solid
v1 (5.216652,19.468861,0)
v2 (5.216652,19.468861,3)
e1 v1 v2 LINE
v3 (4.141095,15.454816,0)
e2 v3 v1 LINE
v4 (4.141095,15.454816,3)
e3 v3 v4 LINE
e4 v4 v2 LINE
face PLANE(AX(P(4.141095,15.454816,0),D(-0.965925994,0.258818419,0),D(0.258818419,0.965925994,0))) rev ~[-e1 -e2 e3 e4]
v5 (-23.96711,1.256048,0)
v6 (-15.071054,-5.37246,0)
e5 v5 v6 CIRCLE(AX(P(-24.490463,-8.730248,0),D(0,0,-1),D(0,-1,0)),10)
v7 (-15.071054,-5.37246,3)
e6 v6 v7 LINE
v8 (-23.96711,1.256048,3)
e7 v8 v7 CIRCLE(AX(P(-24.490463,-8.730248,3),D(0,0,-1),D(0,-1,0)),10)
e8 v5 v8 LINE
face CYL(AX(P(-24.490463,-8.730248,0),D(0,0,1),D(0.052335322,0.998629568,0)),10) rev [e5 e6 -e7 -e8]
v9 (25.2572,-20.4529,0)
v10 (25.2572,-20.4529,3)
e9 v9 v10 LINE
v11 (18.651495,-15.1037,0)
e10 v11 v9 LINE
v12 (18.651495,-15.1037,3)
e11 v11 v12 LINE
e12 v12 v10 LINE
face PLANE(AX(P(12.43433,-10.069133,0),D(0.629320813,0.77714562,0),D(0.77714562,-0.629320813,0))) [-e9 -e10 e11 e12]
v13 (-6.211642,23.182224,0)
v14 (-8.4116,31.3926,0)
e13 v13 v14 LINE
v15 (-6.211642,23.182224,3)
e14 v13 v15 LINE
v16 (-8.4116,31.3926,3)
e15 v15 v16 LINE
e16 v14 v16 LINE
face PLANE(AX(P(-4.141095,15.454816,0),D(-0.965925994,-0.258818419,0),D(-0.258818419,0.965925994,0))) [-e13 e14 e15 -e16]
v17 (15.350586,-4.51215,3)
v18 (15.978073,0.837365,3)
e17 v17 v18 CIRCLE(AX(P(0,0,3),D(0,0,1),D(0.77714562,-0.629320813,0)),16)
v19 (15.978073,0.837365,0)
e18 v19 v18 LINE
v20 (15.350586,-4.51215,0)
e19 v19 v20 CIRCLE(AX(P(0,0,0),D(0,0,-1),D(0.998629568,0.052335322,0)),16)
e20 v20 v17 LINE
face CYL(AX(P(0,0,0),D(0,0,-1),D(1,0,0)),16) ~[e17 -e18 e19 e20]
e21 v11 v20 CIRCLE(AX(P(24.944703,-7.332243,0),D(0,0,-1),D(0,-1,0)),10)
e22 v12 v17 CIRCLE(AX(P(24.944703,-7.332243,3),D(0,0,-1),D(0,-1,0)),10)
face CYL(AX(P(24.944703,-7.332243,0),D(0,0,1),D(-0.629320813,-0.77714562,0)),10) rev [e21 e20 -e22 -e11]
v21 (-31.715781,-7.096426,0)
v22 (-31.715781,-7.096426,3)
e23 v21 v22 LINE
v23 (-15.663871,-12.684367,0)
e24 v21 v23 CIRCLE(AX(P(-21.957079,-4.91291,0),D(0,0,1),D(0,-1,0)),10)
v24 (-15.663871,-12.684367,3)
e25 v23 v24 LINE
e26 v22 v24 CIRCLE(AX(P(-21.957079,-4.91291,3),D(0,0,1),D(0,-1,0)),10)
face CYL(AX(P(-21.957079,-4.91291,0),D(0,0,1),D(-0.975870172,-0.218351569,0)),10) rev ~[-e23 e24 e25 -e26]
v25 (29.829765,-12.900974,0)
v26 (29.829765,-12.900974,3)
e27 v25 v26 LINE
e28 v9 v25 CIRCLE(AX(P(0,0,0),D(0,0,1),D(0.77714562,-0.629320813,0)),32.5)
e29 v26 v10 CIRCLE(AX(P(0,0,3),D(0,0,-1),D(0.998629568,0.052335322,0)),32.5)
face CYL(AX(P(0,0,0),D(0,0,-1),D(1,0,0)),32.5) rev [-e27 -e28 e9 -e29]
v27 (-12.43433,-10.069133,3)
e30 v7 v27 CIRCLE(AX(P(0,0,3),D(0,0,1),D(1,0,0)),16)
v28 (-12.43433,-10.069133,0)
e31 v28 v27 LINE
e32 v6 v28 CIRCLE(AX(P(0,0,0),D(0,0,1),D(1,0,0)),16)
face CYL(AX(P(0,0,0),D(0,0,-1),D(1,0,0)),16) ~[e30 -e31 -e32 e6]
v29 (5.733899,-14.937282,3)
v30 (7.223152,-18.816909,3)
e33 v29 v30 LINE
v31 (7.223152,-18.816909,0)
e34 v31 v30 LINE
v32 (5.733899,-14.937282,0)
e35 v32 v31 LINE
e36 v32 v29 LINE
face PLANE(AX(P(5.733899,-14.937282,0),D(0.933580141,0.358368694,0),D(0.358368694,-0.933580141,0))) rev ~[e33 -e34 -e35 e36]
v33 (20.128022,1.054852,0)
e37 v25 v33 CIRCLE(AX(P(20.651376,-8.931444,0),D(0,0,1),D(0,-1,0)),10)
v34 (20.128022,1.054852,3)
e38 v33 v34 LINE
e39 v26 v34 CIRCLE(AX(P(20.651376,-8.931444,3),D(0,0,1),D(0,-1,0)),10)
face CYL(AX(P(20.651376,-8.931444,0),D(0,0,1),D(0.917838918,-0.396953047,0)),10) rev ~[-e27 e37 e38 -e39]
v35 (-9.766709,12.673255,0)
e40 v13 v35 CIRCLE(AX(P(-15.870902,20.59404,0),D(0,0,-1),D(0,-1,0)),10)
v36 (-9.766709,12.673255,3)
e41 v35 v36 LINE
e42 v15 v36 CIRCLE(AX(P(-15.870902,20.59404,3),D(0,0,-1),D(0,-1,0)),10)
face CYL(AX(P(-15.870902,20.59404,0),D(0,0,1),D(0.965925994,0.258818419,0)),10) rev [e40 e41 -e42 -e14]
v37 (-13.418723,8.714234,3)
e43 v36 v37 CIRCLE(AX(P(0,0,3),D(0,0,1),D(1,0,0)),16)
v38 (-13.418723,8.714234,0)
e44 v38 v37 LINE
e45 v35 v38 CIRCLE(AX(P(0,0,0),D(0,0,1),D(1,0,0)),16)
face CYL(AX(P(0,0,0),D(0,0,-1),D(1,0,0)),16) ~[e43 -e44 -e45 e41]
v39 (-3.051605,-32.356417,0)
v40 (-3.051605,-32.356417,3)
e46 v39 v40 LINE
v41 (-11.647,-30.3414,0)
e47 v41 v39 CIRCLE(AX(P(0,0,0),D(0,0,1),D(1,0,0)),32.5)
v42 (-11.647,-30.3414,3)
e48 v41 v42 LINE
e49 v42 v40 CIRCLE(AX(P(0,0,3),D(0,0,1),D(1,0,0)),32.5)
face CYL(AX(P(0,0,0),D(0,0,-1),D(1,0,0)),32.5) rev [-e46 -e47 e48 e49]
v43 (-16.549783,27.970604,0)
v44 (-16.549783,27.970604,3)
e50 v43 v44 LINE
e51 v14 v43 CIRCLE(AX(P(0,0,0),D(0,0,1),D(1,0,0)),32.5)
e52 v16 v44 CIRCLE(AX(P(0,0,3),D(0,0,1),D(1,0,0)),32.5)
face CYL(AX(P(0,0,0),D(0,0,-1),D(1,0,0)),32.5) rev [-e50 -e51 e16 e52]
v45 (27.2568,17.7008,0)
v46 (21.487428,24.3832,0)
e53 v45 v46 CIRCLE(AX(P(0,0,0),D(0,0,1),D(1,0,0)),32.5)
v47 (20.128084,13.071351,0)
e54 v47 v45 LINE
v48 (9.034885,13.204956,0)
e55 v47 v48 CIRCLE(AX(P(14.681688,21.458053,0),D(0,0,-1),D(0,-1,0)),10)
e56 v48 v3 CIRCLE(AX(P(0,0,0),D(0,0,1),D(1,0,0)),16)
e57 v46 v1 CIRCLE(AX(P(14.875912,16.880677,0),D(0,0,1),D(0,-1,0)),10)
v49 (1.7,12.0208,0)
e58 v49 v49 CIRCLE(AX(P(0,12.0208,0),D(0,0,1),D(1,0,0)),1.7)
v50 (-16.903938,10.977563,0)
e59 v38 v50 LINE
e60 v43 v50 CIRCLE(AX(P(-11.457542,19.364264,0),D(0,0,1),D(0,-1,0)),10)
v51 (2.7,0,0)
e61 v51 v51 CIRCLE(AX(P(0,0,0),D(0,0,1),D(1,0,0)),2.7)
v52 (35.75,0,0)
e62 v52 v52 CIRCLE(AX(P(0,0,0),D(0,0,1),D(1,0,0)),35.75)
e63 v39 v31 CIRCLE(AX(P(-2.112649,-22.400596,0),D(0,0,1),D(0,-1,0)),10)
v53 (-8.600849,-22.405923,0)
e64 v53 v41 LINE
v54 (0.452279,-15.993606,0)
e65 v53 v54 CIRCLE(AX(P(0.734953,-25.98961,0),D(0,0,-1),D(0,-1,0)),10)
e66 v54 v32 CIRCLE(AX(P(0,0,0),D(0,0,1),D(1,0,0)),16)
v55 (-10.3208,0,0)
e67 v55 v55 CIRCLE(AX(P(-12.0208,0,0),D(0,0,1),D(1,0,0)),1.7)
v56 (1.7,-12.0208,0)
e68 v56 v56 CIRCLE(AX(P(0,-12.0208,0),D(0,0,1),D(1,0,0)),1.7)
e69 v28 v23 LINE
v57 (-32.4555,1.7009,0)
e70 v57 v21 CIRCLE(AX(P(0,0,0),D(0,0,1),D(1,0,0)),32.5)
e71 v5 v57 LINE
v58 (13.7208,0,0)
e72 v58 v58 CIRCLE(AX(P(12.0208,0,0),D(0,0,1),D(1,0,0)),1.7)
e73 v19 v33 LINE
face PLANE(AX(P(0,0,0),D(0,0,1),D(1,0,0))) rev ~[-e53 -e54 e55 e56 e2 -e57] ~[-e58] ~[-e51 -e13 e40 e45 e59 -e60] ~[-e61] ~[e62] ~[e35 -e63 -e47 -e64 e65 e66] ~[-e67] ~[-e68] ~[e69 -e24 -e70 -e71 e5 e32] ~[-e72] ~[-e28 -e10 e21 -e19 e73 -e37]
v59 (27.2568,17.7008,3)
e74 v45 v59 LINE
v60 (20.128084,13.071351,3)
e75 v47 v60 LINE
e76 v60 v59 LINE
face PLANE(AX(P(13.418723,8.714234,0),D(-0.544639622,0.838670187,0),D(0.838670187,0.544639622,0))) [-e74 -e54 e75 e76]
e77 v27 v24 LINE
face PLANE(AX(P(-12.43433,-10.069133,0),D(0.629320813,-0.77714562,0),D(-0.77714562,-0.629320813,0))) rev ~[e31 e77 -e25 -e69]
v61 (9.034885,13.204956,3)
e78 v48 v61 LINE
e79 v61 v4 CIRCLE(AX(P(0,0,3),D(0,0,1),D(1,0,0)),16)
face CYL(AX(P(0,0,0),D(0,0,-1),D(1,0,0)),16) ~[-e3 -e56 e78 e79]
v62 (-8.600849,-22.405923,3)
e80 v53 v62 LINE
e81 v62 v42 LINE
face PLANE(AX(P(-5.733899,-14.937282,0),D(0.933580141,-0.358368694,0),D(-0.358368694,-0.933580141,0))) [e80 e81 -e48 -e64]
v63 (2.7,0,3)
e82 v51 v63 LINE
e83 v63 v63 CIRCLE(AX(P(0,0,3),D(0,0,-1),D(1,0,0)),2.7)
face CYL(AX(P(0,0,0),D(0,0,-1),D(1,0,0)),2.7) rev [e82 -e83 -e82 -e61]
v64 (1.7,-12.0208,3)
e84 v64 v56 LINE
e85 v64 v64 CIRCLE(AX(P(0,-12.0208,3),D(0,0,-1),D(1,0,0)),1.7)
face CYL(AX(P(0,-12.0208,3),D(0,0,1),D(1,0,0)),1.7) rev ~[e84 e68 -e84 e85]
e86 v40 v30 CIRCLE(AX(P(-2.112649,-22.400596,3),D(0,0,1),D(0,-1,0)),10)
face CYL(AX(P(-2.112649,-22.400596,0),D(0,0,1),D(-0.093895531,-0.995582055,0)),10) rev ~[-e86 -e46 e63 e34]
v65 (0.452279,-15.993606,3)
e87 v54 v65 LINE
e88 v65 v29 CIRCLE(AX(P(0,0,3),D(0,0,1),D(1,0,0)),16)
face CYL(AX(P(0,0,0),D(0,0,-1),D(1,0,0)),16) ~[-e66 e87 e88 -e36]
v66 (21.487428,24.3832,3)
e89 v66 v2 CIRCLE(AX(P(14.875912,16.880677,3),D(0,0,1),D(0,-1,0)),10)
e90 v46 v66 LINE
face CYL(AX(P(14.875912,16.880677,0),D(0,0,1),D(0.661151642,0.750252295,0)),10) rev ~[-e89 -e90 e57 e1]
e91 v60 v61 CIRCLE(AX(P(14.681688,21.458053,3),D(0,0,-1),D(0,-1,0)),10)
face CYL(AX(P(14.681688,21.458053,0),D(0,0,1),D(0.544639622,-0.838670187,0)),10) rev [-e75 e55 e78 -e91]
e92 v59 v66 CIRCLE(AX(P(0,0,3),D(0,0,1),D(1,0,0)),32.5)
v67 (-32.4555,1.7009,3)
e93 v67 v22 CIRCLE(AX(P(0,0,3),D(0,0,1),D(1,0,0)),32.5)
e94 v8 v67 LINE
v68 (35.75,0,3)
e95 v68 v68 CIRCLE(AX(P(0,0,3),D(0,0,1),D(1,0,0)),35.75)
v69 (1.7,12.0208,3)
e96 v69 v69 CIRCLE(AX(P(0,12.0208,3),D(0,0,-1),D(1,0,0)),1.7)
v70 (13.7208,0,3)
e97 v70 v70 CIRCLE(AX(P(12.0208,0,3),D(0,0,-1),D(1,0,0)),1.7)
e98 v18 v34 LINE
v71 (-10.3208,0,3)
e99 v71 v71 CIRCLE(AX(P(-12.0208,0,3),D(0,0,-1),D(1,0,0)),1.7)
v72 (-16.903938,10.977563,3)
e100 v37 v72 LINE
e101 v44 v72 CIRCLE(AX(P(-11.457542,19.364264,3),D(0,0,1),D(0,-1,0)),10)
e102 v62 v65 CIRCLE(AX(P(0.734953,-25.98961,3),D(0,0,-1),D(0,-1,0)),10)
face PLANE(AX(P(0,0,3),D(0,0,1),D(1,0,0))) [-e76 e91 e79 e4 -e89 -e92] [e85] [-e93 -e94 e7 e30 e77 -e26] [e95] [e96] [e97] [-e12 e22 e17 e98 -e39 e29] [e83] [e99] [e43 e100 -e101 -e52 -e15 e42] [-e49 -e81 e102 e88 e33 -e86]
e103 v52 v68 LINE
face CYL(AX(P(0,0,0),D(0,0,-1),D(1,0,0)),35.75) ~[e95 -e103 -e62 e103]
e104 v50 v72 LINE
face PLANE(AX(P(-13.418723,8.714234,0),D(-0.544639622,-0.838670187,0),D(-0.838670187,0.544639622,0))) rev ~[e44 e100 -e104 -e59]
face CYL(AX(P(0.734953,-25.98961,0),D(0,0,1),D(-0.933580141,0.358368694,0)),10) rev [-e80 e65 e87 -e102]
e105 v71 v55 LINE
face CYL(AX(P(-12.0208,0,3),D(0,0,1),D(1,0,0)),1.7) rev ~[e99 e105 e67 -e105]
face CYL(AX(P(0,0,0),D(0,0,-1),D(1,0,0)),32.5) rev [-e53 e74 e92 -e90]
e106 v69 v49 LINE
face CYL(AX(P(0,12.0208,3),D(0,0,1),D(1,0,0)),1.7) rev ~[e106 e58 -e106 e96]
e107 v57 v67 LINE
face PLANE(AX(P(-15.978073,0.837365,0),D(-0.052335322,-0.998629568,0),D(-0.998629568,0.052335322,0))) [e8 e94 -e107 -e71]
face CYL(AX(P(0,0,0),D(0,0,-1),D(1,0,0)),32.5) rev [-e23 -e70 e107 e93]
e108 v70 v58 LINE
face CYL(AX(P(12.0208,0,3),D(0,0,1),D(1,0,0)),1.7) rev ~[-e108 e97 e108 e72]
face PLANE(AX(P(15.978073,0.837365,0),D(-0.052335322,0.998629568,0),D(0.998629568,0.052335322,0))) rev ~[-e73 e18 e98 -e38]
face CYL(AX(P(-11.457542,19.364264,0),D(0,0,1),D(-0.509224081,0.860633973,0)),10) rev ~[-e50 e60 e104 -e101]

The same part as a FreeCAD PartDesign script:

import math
import FreeCAD as App
import Part
import Sketcher
Q = App.Units.Quantity


def edges_at(feature, points):
    """Names of the edges that pass closest to the given points."""
    edges = feature.Shape.Edges
    near = lambda p: min(range(len(edges)), key=lambda i: edges[i].distToShape(Part.Vertex(*p))[0])
    return sorted({f"Edge{near(p) + 1}" for p in points})

doc = App.newDocument("Part")
body = doc.addObject("PartDesign::Body", "Body")

# Sketch on XY plane
sketch1 = body.newObject("Sketcher::SketchObject", "Sketch")
sketch1.AttachmentSupport = (doc.getObject("XY_Plane"), [""])
sketch1.MapMode = "FlatFace"
sketch1.addGeometry([
    Part.Circle(App.Vector(0, 0, 0), App.Vector(0, 0, 1), 35.8),  # 0
    Part.ArcOfCircle(Part.Circle(App.Vector(0, 0, 0), App.Vector(0, 0, 1), 32.5), math.radians(-39), math.radians(3)),  # 1
    Part.LineSegment(App.Vector(25.3, -20.5, 0), App.Vector(12.4, -10.1, 0)),  # 2
    Part.ArcOfCircle(Part.Circle(App.Vector(0, 0, 0), App.Vector(0, 0, 1), 16), math.radians(-39), math.radians(3)),  # 3
    Part.LineSegment(App.Vector(16, 0.8, 0), App.Vector(32.5, 1.7, 0)),  # 4
    Part.ArcOfCircle(Part.Circle(App.Vector(0, 0, 0), App.Vector(0, 0, 1), 32.5), math.radians(33), math.radians(75)),  # 5
    Part.LineSegment(App.Vector(27.3, 17.7, 0), App.Vector(13.4, 8.7, 0)),  # 6
    Part.ArcOfCircle(Part.Circle(App.Vector(0, 0, 0), App.Vector(0, 0, 1), 16), math.radians(33), math.radians(75)),  # 7
    Part.LineSegment(App.Vector(4.1, 15.5, 0), App.Vector(8.4, 31.4, 0)),  # 8
    Part.ArcOfCircle(Part.Circle(App.Vector(0, 0, 0), App.Vector(0, 0, 1), 32.5), math.radians(105), math.radians(147)),  # 9
    Part.LineSegment(App.Vector(-8.4, 31.4, 0), App.Vector(-4.1, 15.5, 0)),  # 10
    Part.ArcOfCircle(Part.Circle(App.Vector(0, 0, 0), App.Vector(0, 0, 1), 16), math.radians(105), math.radians(147)),  # 11
    Part.LineSegment(App.Vector(-13.4, 8.7, 0), App.Vector(-27.3, 17.7, 0)),  # 12
    Part.ArcOfCircle(Part.Circle(App.Vector(0, 0, 0), App.Vector(0, 0, 1), 32.5), math.radians(177), math.radians(219)),  # 13
    Part.LineSegment(App.Vector(-32.5, 1.7, 0), App.Vector(-16, 0.8, 0)),  # 14
    Part.ArcOfCircle(Part.Circle(App.Vector(0, 0, 0), App.Vector(0, 0, 1), 16), math.radians(177), math.radians(219)),  # 15
    Part.LineSegment(App.Vector(-12.4, -10.1, 0), App.Vector(-25.3, -20.5, 0)),  # 16
    Part.ArcOfCircle(Part.Circle(App.Vector(0, 0, 0), App.Vector(0, 0, 1), 32.5), math.radians(-111), math.radians(-69)),  # 17
    Part.LineSegment(App.Vector(-11.6, -30.3, 0), App.Vector(-5.7, -14.9, 0)),  # 18
    Part.ArcOfCircle(Part.Circle(App.Vector(0, 0, 0), App.Vector(0, 0, 1), 16), math.radians(-111), math.radians(-69)),  # 19
    Part.LineSegment(App.Vector(5.7, -14.9, 0), App.Vector(11.6, -30.3, 0)),  # 20
    Part.Circle(App.Vector(0, 0, 0), App.Vector(0, 0, 1), 2.7),  # 21
], False)
sketch1.addConstraint([
    Sketcher.Constraint("Coincident", 1, 1, 2, 1),
    Sketcher.Constraint("Coincident", 2, 2, 3, 1),
    Sketcher.Constraint("Coincident", 3, 2, 4, 1),
    Sketcher.Constraint("Coincident", 4, 2, 1, 2),
    Sketcher.Constraint("Coincident", 5, 1, 6, 1),
    Sketcher.Constraint("Coincident", 6, 2, 7, 1),
    Sketcher.Constraint("Coincident", 7, 2, 8, 1),
    Sketcher.Constraint("Coincident", 8, 2, 5, 2),
    Sketcher.Constraint("Coincident", 9, 1, 10, 1),
    Sketcher.Constraint("Coincident", 10, 2, 11, 1),
    Sketcher.Constraint("Coincident", 11, 2, 12, 1),
    Sketcher.Constraint("Coincident", 12, 2, 9, 2),
    Sketcher.Constraint("Coincident", 13, 1, 14, 1),
    Sketcher.Constraint("Coincident", 14, 2, 15, 1),
    Sketcher.Constraint("Coincident", 15, 2, 16, 1),
    Sketcher.Constraint("Coincident", 16, 2, 13, 2),
    Sketcher.Constraint("Coincident", 17, 1, 18, 1),
    Sketcher.Constraint("Coincident", 18, 2, 19, 1),
    Sketcher.Constraint("Coincident", 19, 2, 20, 1),
    Sketcher.Constraint("Coincident", 20, 2, 17, 2),
    Sketcher.Constraint("Coincident", 0, 3, -1, 1),
    Sketcher.Constraint("Coincident", 1, 3, -1, 1),
    Sketcher.Constraint("Coincident", 3, 3, -1, 1),
    Sketcher.Constraint("Coincident", 5, 3, -1, 1),
    Sketcher.Constraint("Coincident", 7, 3, -1, 1),
    Sketcher.Constraint("Coincident", 9, 3, -1, 1),
    Sketcher.Constraint("Coincident", 11, 3, -1, 1),
    Sketcher.Constraint("Coincident", 13, 3, -1, 1),
    Sketcher.Constraint("Coincident", 15, 3, -1, 1),
    Sketcher.Constraint("Coincident", 17, 3, -1, 1),
    Sketcher.Constraint("Coincident", 19, 3, -1, 1),
    Sketcher.Constraint("Coincident", 21, 3, -1, 1),
    Sketcher.Constraint("Equal", 1, 5),
    Sketcher.Constraint("Equal", 3, 7),
    Sketcher.Constraint("Equal", 5, 9),
    Sketcher.Constraint("Equal", 7, 11),
    Sketcher.Constraint("Equal", 9, 13),
    Sketcher.Constraint("Equal", 11, 15),
    Sketcher.Constraint("Equal", 13, 17),
    Sketcher.Constraint("Equal", 15, 19),
    Sketcher.Constraint("Horizontal", 8, 2, 9, 1),
    Sketcher.Constraint("Horizontal", 7, 2, 10, 2),
    Sketcher.Constraint("Horizontal", 6, 2, 11, 2),
    Sketcher.Constraint("Horizontal", 5, 1, 12, 2),
    Sketcher.Constraint("Horizontal", 4, 2, 13, 1),
    Sketcher.Constraint("Horizontal", 3, 2, 14, 2),
    Sketcher.Constraint("Horizontal", 2, 2, 15, 2),
    Sketcher.Constraint("Horizontal", 1, 1, 16, 2),
    Sketcher.Constraint("Horizontal", 18, 2, 19, 2),
    Sketcher.Constraint("Horizontal", 17, 1, 20, 2),
    Sketcher.Constraint("Radius", 3, 16.0),
    Sketcher.Constraint("Diameter", 0, 71.5),
    Sketcher.Constraint("Diameter", 21, 5.4),
    Sketcher.Constraint("Radius", 1, 32.5),
    Sketcher.Constraint("Angle", 2, Q("141 deg")),
    Sketcher.Constraint("Angle", 4, Q("3 deg")),
    Sketcher.Constraint("Angle", 6, Q("-147 deg")),
    Sketcher.Constraint("Angle", 8, Q("75 deg")),
    Sketcher.Constraint("Angle", 18, Q("69 deg")),
    Sketcher.Constraint("DistanceY", 4, 2, 5, 1, 16.0),
    Sketcher.Constraint("DistanceY", 2, 2, 4, 2, 11.77),
    Sketcher.Constraint("DistanceY", 1, 1, -1, 1, 20.453),
    Sketcher.Constraint("DistanceX", -1, 1, 7, 2, 4.141),
    Sketcher.Constraint("DistanceX", 17, 1, -1, 1, 11.647),
])
pad1 = body.newObject("PartDesign::Pad", "Pad")
pad1.Profile = sketch1
pad1.Length = 3
doc.recompute()

fillet = body.newObject("PartDesign::Fillet", "Fillet")
fillet.Base = (pad1, edges_at(pad1, [
    (8.412, 31.393, 1.5),
    (-27.257, 17.701, 1.5),
    (-25.257, -20.453, 1.5),
    (11.647, -30.341, 1.5),
    (32.456, 1.701, 1.5),
    (-15.978, 0.837, 1.5),
    (-4.141, 15.455, 1.5),
    (13.419, 8.714, 1.5),
    (12.434, -10.069, 1.5),
    (-5.734, -14.937, 1.5),
]))
fillet.Radius = 10

# Sketch on XY plane
sketch2 = body.newObject("Sketcher::SketchObject", "Sketch001")
sketch2.AttachmentSupport = (doc.getObject("XY_Plane"), [""])
sketch2.MapMode = "FlatFace"
sketch2.AttachmentOffset = App.Placement(App.Vector(0, 0, 3), App.Rotation())
sketch2.addGeometry([
    Part.Circle(App.Vector(0, 12, 0), App.Vector(0, 0, 1), 1.7),
    Part.Circle(App.Vector(-12, 0, 0), App.Vector(0, 0, 1), 1.7),
    Part.Circle(App.Vector(12, 0, 0), App.Vector(0, 0, 1), 1.7),
    Part.Circle(App.Vector(0, -12, 0), App.Vector(0, 0, 1), 1.7),
], False)
sketch2.addConstraint([
    Sketcher.Constraint("Equal", 0, 1),
    Sketcher.Constraint("Equal", 1, 2),
    Sketcher.Constraint("Equal", 2, 3),
    Sketcher.Constraint("Symmetric", 1, 3, 2, 3, -1, 1),
    Sketcher.Constraint("Symmetric", 0, 3, 3, 3, -1, 1),
    Sketcher.Constraint("PointOnObject", 0, 3, -2),
    Sketcher.Constraint("PointOnObject", 1, 3, -1),
    Sketcher.Constraint("Diameter", 0, 3.4),
    Sketcher.Constraint("DistanceY", -1, 1, 0, 3, 12.0208),
    Sketcher.Constraint("DistanceX", 1, 3, -1, 1, 12.0208),
])
pocket1 = body.newObject("PartDesign::Pocket", "Pocket")
pocket1.Profile = sketch2
pocket1.Length = 3

doc.recompute()
